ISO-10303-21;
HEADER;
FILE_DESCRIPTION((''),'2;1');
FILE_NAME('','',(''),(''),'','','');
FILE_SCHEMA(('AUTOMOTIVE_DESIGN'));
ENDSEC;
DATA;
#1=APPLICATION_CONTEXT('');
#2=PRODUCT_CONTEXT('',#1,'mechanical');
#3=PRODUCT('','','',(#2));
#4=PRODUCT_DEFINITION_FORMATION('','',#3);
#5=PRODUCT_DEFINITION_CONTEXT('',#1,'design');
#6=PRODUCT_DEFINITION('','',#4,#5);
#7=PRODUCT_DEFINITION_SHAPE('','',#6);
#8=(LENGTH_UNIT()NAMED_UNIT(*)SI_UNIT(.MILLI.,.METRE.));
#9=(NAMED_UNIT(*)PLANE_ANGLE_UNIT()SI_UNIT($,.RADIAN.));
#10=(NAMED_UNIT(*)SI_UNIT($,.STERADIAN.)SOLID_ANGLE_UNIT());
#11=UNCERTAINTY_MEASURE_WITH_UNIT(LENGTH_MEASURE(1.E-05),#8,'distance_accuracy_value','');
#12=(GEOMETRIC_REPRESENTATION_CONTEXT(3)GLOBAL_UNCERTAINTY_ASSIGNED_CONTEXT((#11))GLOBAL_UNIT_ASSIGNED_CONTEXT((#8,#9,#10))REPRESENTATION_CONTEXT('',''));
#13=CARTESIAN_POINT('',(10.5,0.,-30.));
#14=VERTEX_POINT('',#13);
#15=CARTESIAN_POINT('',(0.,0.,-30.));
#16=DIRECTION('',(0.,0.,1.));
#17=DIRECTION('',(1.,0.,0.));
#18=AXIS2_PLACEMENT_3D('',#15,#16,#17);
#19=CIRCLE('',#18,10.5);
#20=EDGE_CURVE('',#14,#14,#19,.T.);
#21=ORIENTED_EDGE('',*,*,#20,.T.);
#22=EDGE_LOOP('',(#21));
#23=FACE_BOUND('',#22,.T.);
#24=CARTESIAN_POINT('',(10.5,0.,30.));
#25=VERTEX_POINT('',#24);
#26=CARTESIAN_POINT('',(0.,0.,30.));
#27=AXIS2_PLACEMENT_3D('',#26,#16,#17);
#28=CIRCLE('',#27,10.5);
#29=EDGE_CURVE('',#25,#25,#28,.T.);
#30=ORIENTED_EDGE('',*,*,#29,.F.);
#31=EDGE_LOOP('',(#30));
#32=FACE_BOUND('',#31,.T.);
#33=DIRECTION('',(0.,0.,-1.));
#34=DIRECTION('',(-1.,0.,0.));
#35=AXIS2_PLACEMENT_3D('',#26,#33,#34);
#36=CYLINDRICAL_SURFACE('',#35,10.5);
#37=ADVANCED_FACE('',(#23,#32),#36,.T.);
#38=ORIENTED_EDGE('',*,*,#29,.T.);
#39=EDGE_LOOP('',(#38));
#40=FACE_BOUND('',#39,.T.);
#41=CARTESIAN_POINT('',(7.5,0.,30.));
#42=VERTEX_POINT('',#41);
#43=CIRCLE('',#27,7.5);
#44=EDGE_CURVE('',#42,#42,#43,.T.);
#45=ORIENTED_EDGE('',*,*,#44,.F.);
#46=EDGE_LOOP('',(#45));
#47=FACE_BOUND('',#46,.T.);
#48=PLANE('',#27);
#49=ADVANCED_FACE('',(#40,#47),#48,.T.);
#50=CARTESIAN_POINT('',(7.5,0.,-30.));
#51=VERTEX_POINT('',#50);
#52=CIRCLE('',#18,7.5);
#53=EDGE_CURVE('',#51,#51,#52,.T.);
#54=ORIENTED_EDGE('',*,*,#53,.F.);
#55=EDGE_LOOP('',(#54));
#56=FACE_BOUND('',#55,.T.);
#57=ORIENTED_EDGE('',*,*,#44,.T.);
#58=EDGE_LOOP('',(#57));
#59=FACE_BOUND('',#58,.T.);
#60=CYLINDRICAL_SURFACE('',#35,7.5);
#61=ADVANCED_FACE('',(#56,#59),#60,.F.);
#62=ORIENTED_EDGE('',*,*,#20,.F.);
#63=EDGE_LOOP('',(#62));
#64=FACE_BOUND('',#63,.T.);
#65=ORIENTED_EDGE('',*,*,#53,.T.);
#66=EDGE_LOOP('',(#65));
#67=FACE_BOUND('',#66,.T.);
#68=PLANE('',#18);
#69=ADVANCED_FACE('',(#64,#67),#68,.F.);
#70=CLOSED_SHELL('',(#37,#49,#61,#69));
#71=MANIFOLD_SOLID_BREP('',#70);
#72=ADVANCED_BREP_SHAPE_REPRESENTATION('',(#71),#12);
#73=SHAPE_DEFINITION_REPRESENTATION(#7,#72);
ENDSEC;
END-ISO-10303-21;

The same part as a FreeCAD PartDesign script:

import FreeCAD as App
import Part
import Sketcher
from FreeCAD import Vector

doc = App.newDocument("Part")
body = doc.addObject("PartDesign::Body", "Body")

# Sketch on XY plane
sketch1 = body.newObject("Sketcher::SketchObject", "Sketch")
sketch1.AttachmentSupport = (doc.getObject("XY_Plane"), [""])
sketch1.MapMode = "FlatFace"
sketch1.addGeometry([
    Part.Circle(Vector(0, 0, 0), Vector(0, 0, 1), 10),
    Part.Circle(Vector(0, 0, 0), Vector(0, 0, 1), 8),
], False)
sketch1.addConstraint([
    Sketcher.Constraint("Coincident", 0, 3, -1, 1),
    Sketcher.Constraint("Coincident", 1, 3, -1, 1),
    Sketcher.Constraint("Diameter", 0, 21.0),
    Sketcher.Constraint("Diameter", 1, 15.0),
])
pad1 = body.newObject("PartDesign::Pad", "Pad")
pad1.Profile = sketch1
pad1.Length = 60
pad1.Midplane = True

doc.recompute()
